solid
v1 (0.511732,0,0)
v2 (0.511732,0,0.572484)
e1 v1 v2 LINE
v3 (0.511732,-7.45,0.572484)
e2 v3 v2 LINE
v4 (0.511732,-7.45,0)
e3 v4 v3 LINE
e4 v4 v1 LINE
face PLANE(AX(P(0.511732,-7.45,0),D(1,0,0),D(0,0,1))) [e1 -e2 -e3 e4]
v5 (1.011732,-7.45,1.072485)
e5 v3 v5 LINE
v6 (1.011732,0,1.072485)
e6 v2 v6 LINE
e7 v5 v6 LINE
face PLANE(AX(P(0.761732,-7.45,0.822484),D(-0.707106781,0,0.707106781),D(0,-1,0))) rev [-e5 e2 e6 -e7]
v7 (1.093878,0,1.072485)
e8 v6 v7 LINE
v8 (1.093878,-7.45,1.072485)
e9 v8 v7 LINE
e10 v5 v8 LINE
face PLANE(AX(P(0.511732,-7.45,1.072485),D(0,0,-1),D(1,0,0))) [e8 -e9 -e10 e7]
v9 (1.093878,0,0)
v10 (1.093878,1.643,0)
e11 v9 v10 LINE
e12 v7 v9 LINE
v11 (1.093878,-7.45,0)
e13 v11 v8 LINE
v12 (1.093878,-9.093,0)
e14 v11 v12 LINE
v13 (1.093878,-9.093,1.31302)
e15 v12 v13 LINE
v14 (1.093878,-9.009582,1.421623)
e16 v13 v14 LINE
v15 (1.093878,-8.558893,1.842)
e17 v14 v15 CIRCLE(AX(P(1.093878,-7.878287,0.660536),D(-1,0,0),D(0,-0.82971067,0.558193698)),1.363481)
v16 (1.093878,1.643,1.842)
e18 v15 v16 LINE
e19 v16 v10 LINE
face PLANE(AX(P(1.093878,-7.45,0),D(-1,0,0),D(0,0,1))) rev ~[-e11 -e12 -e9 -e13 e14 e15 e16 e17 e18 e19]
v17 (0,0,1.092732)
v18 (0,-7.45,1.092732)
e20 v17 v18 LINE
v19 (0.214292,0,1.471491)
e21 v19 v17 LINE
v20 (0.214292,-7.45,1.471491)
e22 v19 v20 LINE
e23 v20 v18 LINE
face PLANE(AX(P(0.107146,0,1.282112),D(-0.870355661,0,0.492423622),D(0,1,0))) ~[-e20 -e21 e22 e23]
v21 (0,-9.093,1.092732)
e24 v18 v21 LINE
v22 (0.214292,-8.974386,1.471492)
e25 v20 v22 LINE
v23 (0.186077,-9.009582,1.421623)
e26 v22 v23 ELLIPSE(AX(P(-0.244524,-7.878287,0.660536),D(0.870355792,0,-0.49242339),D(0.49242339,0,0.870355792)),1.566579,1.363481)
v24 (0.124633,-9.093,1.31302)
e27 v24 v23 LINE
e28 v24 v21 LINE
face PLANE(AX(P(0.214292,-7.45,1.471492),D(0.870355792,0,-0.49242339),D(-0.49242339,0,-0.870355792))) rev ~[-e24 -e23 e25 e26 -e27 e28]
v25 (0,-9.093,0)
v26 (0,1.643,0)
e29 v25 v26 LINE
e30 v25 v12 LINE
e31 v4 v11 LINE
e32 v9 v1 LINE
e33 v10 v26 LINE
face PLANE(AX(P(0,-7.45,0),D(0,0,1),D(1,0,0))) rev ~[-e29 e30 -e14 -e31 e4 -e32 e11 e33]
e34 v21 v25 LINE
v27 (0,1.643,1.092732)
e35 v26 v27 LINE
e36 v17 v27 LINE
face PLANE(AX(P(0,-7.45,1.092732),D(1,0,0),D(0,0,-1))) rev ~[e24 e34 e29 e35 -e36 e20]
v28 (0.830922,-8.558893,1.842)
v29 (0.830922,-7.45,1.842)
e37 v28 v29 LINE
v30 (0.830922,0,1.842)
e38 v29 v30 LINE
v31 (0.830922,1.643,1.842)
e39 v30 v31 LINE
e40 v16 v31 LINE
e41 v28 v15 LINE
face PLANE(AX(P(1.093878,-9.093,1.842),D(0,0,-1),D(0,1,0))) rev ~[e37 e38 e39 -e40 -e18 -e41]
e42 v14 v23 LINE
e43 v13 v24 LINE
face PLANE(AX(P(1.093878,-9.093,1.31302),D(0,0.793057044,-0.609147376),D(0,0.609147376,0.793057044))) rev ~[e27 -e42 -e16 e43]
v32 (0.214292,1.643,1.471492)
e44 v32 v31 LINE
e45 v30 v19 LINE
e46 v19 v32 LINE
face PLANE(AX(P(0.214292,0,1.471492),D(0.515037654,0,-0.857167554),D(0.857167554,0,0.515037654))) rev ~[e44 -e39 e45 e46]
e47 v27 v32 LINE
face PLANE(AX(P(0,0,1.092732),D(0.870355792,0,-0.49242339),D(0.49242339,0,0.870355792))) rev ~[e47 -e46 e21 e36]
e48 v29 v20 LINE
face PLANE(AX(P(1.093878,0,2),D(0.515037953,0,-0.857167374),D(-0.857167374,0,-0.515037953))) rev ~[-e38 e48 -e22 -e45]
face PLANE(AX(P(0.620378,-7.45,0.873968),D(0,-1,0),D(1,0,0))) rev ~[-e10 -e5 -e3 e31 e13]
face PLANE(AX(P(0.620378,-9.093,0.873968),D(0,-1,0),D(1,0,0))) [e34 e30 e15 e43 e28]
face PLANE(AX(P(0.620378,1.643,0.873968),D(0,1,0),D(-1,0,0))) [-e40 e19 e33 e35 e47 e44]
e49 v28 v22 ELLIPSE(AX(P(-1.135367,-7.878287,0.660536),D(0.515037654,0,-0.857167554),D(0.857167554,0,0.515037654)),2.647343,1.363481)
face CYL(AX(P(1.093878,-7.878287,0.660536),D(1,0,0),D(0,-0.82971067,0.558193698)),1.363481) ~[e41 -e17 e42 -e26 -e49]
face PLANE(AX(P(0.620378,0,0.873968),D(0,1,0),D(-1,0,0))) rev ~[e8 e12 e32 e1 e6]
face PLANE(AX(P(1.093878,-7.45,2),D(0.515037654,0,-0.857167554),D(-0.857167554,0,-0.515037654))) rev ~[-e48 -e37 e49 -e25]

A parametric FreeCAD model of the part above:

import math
import FreeCAD as App
import Part
import Sketcher
from FreeCAD import Vector
Q = App.Units.Quantity


def edges_at(feature, points):
    """Names of the edges that pass closest to the given points."""
    edges = feature.Shape.Edges
    near = lambda p: min(range(len(edges)), key=lambda i: edges[i].distToShape(Part.Vertex(*p))[0])
    return sorted({f"Edge{near(p) + 1}" for p in points})

doc = App.newDocument("Part")
body = doc.addObject("PartDesign::Body", "Body")

# Sketch on XZ plane
sketch1 = doc.addObject("Sketcher::SketchObject", "Sketch")
body.addObject(sketch1)
sketch1.AttachmentSupport = (doc.XZ_Plane, [""])
sketch1.MapMode = "FlatFace"
sketch1.addGeometry([
    Part.LineSegment(Vector(0, 1.342732, 0), Vector(0, 0, 0)),
    Part.LineSegment(Vector(0, 0, 0), Vector(1.093878, 0, 0)),
    Part.LineSegment(Vector(1.093878, 0, 0), Vector(1.093878, 2, 0)),
    Part.LineSegment(Vector(1.093878, 2, 0), Vector(0, 1.342732, 0)),
], False)
sketch1.addConstraint([
    Sketcher.Constraint("Coincident", 0, 2, 1, 1),
    Sketcher.Constraint("Coincident", 1, 2, 2, 1),
    Sketcher.Constraint("Coincident", 2, 2, 3, 1),
    Sketcher.Constraint("Coincident", 3, 2, 0, 1),
    Sketcher.Constraint("Vertical", 0),
    Sketcher.Constraint("Horizontal", 1),
    Sketcher.Constraint("Vertical", 2),
    Sketcher.Constraint("Coincident", 0, 2, -1, 1),
    Sketcher.Constraint("DistanceY", 2, 1, 2, 2, 2.0),
    Sketcher.Constraint("Angle", 3, Q("-149.000008 deg")),
    Sketcher.Constraint("DistanceX", 1, 1, 1, 2, 1.093878),
])
pad1 = doc.addObject("PartDesign::Pad", "Pad")
body.addObject(pad1)
pad1.Profile = sketch1
pad1.Length = 7.45

# Sketch on XZ plane
sketch2 = doc.addObject("Sketcher::SketchObject", "Sketch001")
body.addObject(sketch2)
sketch2.AttachmentSupport = (doc.XZ_Plane, [""])
sketch2.MapMode = "FlatFace"
sketch2.AttachmentOffset = App.Placement(Vector(0, 0, 7.45), App.Rotation())
sketch2.addGeometry([
    Part.LineSegment(Vector(0.511732, 1.072485, 0), Vector(0.511732, 0, 0)),
    Part.LineSegment(Vector(0.511732, 0, 0), Vector(1.093878, 0, 0)),
    Part.LineSegment(Vector(1.093878, 0, 0), Vector(1.093878, 1.072485, 0)),
    Part.LineSegment(Vector(1.093878, 1.072485, 0), Vector(0.511732, 1.072485, 0)),
], False)
sketch2.addConstraint([
    Sketcher.Constraint("Coincident", 0, 2, 1, 1),
    Sketcher.Constraint("Coincident", 1, 2, 2, 1),
    Sketcher.Constraint("Coincident", 2, 2, 3, 1),
    Sketcher.Constraint("Coincident", 3, 2, 0, 1),
    Sketcher.Constraint("Vertical", 0),
    Sketcher.Constraint("Horizontal", 1),
    Sketcher.Constraint("Vertical", 2),
    Sketcher.Constraint("Horizontal", 3),
    Sketcher.Constraint("PointOnObject", 0, 2, -1),
    Sketcher.Constraint("DistanceX", 1, 1, 1, 2, 0.582146),
    Sketcher.Constraint("DistanceY", 0, 2, 0, 1, 1.072485),
    Sketcher.Constraint("DistanceX", -1, 1, 0, 2, 0.511732),
])
pocket1 = doc.addObject("PartDesign::Pocket", "Pocket")
body.addObject(pocket1)
pocket1.Profile = sketch2
pocket1.Type = "ThroughAll"
doc.recompute()

chamfer = doc.addObject("PartDesign::Chamfer", "Chamfer")
body.addObject(chamfer)
chamfer.Base = (pocket1, edges_at(pocket1, [(0.512, -3.725, 1.072)]))
chamfer.Size = 0.5
doc.recompute()

chamfer2 = doc.addObject("PartDesign::Chamfer", "Chamfer001")
body.addObject(chamfer2)
chamfer2.Base = (chamfer, edges_at(chamfer, [(0, -3.725, 1.343)]))
chamfer2.Size = 0.25

# Sketch on XZ plane
sketch3 = doc.addObject("Sketcher::SketchObject", "Sketch002")
body.addObject(sketch3)
sketch3.AttachmentSupport = (doc.XZ_Plane, [""])
sketch3.MapMode = "FlatFace"
sketch3.addGeometry([
    Part.LineSegment(Vector(0.214292, 1.471492, 0), Vector(1.093878, 2, 0)),  # 0
    Part.LineSegment(Vector(1.093878, 2, 0), Vector(1.093878, 0, 0)),  # 1
    Part.LineSegment(Vector(1.093878, 0, 0), Vector(0, 0, 0)),  # 2
    Part.LineSegment(Vector(0, 0, 0), Vector(0, 1.092732, 0)),  # 3
    Part.LineSegment(Vector(0, 1.092732, 0), Vector(0.214292, 1.471492, 0)),  # 4
], False)
sketch3.addConstraint([
    Sketcher.Constraint("Coincident", 0, 2, 1, 1),
    Sketcher.Constraint("Coincident", 1, 2, 2, 1),
    Sketcher.Constraint("Coincident", 2, 2, 3, 1),
    Sketcher.Constraint("Coincident", 3, 2, 4, 1),
    Sketcher.Constraint("Coincident", 4, 2, 0, 1),
    Sketcher.Constraint("Vertical", 1),
    Sketcher.Constraint("Horizontal", 2),
    Sketcher.Constraint("Vertical", 3),
    Sketcher.Constraint("Coincident", 2, 2, -1, 1),
    Sketcher.Constraint("DistanceY", 1, 2, 1, 1, 2.0),
    Sketcher.Constraint("Angle", 4, Q("60.500011 deg")),
    Sketcher.Constraint("Distance", 4, 0.435178),
    Sketcher.Constraint("DistanceX", 2, 2, 2, 1, 1.093878),
    Sketcher.Constraint("DistanceY", 3, 1, 3, 2, 1.092732),
])
pad2 = doc.addObject("PartDesign::Pad", "Pad001")
body.addObject(pad2)
pad2.Profile = sketch3
pad2.Length = 1.643
pad2.Reversed = True

# Sketch on XZ plane
sketch4 = doc.addObject("Sketcher::SketchObject", "Sketch003")
body.addObject(sketch4)
sketch4.AttachmentSupport = (doc.XZ_Plane, [""])
sketch4.MapMode = "FlatFace"
sketch4.AttachmentOffset = App.Placement(Vector(0, 0, 7.45), App.Rotation())
sketch4.addGeometry([
    Part.LineSegment(Vector(1.093878, 0, 0), Vector(1.093878, 2, 0)),  # 0
    Part.LineSegment(Vector(1.093878, 2, 0), Vector(0.214292, 1.471492, 0)),  # 1
    Part.LineSegment(Vector(0.214292, 1.471492, 0), Vector(0, 1.092732, 0)),  # 2
    Part.LineSegment(Vector(0, 1.092732, 0), Vector(0, 0, 0)),  # 3
    Part.LineSegment(Vector(0, 0, 0), Vector(1.093878, 0, 0)),  # 4
], False)
sketch4.addConstraint([
    Sketcher.Constraint("Coincident", 0, 2, 1, 1),
    Sketcher.Constraint("Coincident", 1, 2, 2, 1),
    Sketcher.Constraint("Coincident", 2, 2, 3, 1),
    Sketcher.Constraint("Coincident", 3, 2, 4, 1),
    Sketcher.Constraint("Coincident", 4, 2, 0, 1),
    Sketcher.Constraint("Vertical", 0),
    Sketcher.Constraint("Vertical", 3),
    Sketcher.Constraint("Horizontal", 4),
    Sketcher.Constraint("Coincident", 3, 2, -1, 1),
    Sketcher.Constraint("DistanceY", 0, 1, 0, 2, 2.0),
    Sketcher.Constraint("Angle", 2, Q("-119.499989 deg")),
    Sketcher.Constraint("Distance", 2, 0.435178),
    Sketcher.Constraint("DistanceX", 4, 1, 4, 2, 1.093878),
    Sketcher.Constraint("DistanceY", 3, 2, 3, 1, 1.092732),
])
pad3 = doc.addObject("PartDesign::Pad", "Pad002")
body.addObject(pad3)
pad3.Profile = sketch4
pad3.Length = 1.643

# Sketch on YZ plane
sketch5 = doc.addObject("Sketcher::SketchObject", "Sketch004")
body.addObject(sketch5)
sketch5.AttachmentSupport = (doc.YZ_Plane, [""])
sketch5.MapMode = "FlatFace"
sketch5.AttachmentOffset = App.Placement(Vector(0, 0, 1.093878), App.Rotation())
sketch5.addGeometry([
    Part.LineSegment(Vector(-9.093, 2, 0), Vector(-9.093, 1.842, 0)),
    Part.LineSegment(Vector(-9.093, 1.842, 0), Vector(1.643, 1.842, 0)),
    Part.LineSegment(Vector(1.643, 1.842, 0), Vector(1.643, 2, 0)),
    Part.LineSegment(Vector(1.643, 2, 0), Vector(-9.093, 2, 0)),
], False)
sketch5.addConstraint([
    Sketcher.Constraint("Coincident", 0, 2, 1, 1),
    Sketcher.Constraint("Coincident", 1, 2, 2, 1),
    Sketcher.Constraint("Coincident", 2, 2, 3, 1),
    Sketcher.Constraint("Coincident", 3, 2, 0, 1),
    Sketcher.Constraint("Vertical", 0),
    Sketcher.Constraint("Horizontal", 1),
    Sketcher.Constraint("Vertical", 2),
    Sketcher.Constraint("Horizontal", 3),
    Sketcher.Constraint("DistanceY", -1, 1, 2, 2, 2.0),
    Sketcher.Constraint("DistanceX", 1, 1, 1, 2, 10.736),
    Sketcher.Constraint("DistanceY", 0, 2, 0, 1, 0.158),
    Sketcher.Constraint("DistanceX", 0, 2, -1, 1, 9.093),
])
pocket2 = doc.addObject("PartDesign::Pocket", "Pocket001")
body.addObject(pocket2)
pocket2.Profile = sketch5
pocket2.Type = "ThroughAll"

# Sketch on YZ plane
sketch6 = doc.addObject("Sketcher::SketchObject", "Sketch005")
body.addObject(sketch6)
sketch6.AttachmentSupport = (doc.YZ_Plane, [""])
sketch6.MapMode = "FlatFace"
sketch6.AttachmentOffset = App.Placement(Vector(0, 0, 1.093878), App.Rotation())
sketch6.addGeometry([
    Part.LineSegment(Vector(-9.093, 2, 0), Vector(-9.093, 1.31302, 0)),  # 0
    Part.LineSegment(Vector(-9.093, 1.31302, 0), Vector(-9.009582, 1.421623, 0)),  # 1
    Part.ArcOfCircle(Part.Circle(Vector(-7.878287, 0.660536, 0), Vector(0, 0, 1), 1.363481), math.radians(100.770062), math.radians(146.069028)),  # 2
    Part.LineSegment(Vector(-8.133078, 2, 0), Vector(-9.093, 2, 0)),  # 3
    Part.ArcOfCircle(Part.Circle(Vector(-7.878289, 0.660519, 0), Vector(0, 0, 1), 1.363498), math.radians(79.230158), math.radians(100.769842)),  # 4
    Part.LineSegment(Vector(-8.133078, 2, 0), Vector(-7.6235, 2, 0)),  # 5
], False)
sketch6.addConstraint([
    Sketcher.Constraint("Coincident", 0, 2, 1, 1),
    Sketcher.Constraint("Coincident", 1, 2, 2, 2),
    Sketcher.Constraint("Coincident", 2, 1, 3, 1),
    Sketcher.Constraint("Coincident", 3, 2, 0, 1),
    Sketcher.Constraint("Coincident", 4, 1, 5, 2),
    Sketcher.Constraint("Coincident", 5, 1, 4, 2),
    Sketcher.Constraint("Vertical", 0),
    Sketcher.Constraint("Horizontal", 3),
    Sketcher.Constraint("Horizontal", 5),
    Sketcher.Constraint("Coincident", 5, 1, 2, 1),
    Sketcher.Constraint("DistanceY", -1, 1, 2, 1, 2.0),
    Sketcher.Constraint("Radius", 2, 1.363481),
    Sketcher.Constraint("DistanceX", 0, 2, -1, 1, 9.093),
    Sketcher.Constraint("Radius", 4, 1.363498),
    Sketcher.Constraint("DistanceY", 0, 2, 0, 1, 0.68698),
    Sketcher.Constraint("DistanceX", 4, 1, -1, 1, 7.6235),
    Sketcher.Constraint("DistanceY", 4, 3, 0, 2, 0.652501),
    Sketcher.Constraint("DistanceX", 2, 1, 2, 3, 0.254791),
    Sketcher.Constraint("Distance", 1, 0.136942),
])
pocket3 = doc.addObject("PartDesign::Pocket", "Pocket002")
body.addObject(pocket3)
pocket3.Profile = sketch6
pocket3.Type = "ThroughAll"

doc.recompute()
